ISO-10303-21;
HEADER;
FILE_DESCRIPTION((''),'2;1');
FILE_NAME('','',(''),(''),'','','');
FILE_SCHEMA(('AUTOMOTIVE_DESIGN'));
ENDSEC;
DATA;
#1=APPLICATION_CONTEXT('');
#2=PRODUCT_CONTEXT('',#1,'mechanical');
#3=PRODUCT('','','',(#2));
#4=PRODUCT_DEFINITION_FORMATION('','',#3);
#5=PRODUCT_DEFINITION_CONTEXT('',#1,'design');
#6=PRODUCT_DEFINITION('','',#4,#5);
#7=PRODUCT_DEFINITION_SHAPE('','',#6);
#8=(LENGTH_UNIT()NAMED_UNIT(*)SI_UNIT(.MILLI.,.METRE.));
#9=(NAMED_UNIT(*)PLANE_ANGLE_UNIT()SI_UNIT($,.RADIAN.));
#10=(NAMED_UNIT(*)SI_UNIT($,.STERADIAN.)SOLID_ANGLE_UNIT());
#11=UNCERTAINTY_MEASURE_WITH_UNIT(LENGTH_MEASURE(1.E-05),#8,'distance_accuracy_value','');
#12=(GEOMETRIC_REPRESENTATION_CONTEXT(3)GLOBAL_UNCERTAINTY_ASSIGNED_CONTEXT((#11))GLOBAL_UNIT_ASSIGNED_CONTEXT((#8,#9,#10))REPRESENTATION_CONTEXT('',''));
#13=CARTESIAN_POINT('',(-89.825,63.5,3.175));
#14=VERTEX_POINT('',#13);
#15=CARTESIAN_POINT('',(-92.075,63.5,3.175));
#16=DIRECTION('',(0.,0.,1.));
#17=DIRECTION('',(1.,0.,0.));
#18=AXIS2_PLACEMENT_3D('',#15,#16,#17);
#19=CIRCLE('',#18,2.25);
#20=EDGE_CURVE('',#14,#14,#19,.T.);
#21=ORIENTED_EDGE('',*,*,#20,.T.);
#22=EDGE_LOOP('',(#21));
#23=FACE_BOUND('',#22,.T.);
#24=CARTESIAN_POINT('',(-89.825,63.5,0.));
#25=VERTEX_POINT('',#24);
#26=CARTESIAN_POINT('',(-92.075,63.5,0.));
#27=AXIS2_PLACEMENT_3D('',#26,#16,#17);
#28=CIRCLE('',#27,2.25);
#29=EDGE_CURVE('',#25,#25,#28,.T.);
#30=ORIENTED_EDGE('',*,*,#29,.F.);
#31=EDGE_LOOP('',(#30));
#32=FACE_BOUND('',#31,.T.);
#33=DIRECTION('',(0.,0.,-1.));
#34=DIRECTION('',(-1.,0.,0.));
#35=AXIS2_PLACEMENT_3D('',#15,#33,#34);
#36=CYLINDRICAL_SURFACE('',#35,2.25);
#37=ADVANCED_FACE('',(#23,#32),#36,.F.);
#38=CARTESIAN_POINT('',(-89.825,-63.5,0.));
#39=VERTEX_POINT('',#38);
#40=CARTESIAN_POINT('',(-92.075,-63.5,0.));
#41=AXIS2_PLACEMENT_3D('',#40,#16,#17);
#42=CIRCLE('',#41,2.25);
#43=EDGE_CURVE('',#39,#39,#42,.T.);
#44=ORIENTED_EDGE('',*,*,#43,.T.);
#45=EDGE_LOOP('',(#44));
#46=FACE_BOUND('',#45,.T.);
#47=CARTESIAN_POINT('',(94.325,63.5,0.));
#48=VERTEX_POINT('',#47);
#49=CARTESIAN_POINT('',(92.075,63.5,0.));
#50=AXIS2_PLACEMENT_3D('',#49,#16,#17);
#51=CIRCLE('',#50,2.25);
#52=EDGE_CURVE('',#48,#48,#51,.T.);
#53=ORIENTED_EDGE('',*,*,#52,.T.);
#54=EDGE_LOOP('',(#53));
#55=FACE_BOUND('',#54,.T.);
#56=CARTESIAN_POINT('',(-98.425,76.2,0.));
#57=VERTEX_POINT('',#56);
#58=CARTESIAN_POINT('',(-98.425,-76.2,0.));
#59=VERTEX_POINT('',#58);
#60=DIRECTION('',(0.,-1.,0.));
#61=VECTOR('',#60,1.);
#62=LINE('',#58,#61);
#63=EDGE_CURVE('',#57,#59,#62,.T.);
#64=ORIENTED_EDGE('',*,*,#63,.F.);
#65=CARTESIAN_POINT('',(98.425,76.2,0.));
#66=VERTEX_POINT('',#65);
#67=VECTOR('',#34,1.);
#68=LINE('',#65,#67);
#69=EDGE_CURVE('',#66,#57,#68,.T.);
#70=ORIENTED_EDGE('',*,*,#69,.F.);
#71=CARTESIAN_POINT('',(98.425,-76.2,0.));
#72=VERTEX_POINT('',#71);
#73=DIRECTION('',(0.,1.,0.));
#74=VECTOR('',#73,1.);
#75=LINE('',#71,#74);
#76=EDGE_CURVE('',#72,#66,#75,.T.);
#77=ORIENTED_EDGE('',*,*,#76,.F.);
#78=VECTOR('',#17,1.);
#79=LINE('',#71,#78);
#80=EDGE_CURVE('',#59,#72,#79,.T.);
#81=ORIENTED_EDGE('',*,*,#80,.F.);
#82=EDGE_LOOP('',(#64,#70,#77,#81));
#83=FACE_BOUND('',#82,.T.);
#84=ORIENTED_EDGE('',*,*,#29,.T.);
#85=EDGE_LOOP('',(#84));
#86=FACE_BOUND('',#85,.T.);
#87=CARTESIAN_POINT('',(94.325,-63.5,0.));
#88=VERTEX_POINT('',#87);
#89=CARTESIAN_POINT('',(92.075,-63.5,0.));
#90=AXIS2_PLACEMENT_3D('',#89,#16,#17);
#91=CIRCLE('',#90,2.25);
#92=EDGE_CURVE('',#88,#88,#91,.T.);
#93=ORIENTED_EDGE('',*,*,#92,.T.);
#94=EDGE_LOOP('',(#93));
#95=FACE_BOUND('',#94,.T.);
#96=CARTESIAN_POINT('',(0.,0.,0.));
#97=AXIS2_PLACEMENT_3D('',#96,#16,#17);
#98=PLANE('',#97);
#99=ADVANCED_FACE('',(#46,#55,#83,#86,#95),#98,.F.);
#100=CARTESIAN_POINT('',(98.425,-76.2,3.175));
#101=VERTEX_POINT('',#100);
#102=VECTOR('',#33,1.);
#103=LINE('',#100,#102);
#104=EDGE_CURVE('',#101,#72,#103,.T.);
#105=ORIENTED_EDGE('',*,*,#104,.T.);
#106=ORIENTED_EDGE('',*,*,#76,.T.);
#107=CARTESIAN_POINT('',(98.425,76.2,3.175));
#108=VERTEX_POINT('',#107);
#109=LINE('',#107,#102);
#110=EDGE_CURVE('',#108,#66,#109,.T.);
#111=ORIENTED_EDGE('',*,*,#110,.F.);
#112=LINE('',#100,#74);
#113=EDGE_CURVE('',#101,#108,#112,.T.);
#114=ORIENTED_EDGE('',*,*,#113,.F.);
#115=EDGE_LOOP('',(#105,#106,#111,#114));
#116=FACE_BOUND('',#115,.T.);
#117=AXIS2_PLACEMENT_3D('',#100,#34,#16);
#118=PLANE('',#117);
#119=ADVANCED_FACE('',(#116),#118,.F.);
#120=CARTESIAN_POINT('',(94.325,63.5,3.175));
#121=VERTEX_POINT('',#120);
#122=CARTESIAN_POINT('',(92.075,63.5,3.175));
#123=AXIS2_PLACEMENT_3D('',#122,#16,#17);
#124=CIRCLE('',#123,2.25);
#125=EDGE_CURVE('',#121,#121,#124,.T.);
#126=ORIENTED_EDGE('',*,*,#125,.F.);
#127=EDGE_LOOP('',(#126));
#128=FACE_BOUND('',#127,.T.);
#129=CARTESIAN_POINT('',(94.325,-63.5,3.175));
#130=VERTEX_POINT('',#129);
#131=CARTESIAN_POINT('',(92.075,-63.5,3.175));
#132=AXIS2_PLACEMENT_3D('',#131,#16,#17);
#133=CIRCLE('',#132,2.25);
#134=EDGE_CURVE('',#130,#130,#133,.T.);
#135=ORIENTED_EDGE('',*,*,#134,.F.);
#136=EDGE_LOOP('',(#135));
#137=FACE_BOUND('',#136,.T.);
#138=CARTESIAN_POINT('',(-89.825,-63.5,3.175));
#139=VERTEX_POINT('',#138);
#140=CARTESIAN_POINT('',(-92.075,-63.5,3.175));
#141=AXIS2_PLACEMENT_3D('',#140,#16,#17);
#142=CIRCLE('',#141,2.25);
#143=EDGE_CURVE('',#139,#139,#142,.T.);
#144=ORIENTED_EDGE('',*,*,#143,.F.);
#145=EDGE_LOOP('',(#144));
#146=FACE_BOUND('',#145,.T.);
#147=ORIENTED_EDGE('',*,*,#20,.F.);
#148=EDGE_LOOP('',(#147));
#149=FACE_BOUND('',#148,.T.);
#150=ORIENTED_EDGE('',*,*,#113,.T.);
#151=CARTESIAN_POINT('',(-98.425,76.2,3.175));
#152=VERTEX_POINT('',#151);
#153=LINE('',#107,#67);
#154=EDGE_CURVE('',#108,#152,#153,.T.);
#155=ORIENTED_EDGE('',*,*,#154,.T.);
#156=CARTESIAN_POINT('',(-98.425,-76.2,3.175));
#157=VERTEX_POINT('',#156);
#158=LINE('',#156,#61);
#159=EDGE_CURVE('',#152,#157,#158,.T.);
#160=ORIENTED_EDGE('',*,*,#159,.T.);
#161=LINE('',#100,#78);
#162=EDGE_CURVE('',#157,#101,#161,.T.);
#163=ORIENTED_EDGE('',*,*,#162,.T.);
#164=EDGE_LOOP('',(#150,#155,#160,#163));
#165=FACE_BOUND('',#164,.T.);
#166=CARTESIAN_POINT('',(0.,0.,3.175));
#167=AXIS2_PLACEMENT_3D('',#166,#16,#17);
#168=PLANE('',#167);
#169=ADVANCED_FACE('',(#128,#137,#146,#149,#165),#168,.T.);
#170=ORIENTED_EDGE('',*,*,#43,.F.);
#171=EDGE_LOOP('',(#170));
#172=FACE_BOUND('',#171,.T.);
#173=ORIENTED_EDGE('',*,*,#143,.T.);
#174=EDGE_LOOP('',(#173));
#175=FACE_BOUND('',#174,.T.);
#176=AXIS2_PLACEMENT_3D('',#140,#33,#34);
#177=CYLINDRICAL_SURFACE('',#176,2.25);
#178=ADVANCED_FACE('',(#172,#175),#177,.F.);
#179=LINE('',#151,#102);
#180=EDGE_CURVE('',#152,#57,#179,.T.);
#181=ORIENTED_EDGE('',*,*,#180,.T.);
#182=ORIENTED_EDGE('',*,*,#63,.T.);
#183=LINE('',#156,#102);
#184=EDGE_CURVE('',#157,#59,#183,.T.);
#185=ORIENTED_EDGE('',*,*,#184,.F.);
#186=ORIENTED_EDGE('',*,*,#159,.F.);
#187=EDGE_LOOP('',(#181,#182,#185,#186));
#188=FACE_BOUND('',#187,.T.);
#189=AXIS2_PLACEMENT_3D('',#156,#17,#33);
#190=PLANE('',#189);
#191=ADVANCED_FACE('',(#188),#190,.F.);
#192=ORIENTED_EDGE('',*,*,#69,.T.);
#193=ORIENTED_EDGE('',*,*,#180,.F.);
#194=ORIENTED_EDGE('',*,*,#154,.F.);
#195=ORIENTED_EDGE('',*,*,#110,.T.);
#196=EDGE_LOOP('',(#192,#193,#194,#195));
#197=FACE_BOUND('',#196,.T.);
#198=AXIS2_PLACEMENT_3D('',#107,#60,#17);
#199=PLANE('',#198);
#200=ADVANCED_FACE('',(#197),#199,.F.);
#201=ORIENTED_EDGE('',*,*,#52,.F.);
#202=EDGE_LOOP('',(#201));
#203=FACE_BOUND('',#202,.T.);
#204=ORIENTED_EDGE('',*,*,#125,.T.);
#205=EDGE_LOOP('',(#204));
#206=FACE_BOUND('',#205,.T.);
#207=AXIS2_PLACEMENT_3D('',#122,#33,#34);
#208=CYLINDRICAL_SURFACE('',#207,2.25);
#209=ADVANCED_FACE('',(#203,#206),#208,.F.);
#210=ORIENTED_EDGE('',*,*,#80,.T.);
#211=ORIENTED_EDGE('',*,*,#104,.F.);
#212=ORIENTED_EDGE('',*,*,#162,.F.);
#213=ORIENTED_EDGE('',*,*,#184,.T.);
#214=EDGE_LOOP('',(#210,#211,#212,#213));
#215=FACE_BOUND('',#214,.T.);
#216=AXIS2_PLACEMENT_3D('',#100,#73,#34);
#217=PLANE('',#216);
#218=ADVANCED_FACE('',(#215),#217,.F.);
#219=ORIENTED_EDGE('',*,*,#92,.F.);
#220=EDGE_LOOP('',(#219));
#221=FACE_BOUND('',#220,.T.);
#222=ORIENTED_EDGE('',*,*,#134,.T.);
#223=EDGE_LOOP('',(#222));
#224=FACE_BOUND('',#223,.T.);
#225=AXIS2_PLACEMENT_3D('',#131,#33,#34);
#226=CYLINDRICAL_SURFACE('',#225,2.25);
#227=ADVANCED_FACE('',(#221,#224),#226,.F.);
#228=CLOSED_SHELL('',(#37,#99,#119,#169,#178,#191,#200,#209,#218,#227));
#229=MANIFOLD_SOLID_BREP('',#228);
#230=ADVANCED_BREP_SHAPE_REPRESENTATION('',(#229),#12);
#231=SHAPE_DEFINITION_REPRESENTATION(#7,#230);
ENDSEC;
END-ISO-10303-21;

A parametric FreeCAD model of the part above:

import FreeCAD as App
import Part
import Sketcher
Q = App.Units.Quantity


def add_polygon(sketch, points):
    """Adds a closed chain of lines whose ends are joined by coincident constraints."""
    first, n = sketch.GeometryCount, len(points)
    for a, b in zip(points, points[1:] + points[:1]):
        sketch.addGeometry(Part.LineSegment(App.Vector(*a, 0), App.Vector(*b, 0)), False)
    for i in range(n):
        sketch.addConstraint(Sketcher.Constraint("Coincident", first + i, 2, first + (i + 1) % n, 1))

doc = App.newDocument("Part")
params = doc.addObject("Spreadsheet::Sheet", "Params")
for row, (alias, value) in enumerate([
    ("sketch1_height", "6 in"),
    ("sketch1_width", "7.75 in"),
    ("pad1_length", "0.125 in"),
], start=1):
    params.set(f"A{row}", alias)
    params.set(f"B{row}", "=" + value)
    params.setAlias(f"B{row}", alias)

body = doc.addObject("PartDesign::Body", "Body")

# Sketch on XY plane
sketch1 = body.newObject("Sketcher::SketchObject", "Sketch")
sketch1.AttachmentSupport = (doc.getObject("XY_Plane"), [""])
sketch1.MapMode = "FlatFace"
add_polygon(sketch1, [(-98.4, 76.2), (-98.4, -76.2), (98.4, -76.2), (98.4, 76.2)])  # lines 0-3
sketch1.addGeometry(Part.Circle(App.Vector(-92.1, -63.5, 0), App.Vector(0, 0, 1), 2.2), False)  # 4
sketch1.addGeometry(Part.Circle(App.Vector(92.1, -63.5, 0), App.Vector(0, 0, 1), 2.2), False)  # 5
sketch1.addGeometry(Part.Circle(App.Vector(-92.1, 63.5, 0), App.Vector(0, 0, 1), 2.2), False)  # 6
sketch1.addGeometry(Part.Circle(App.Vector(92.1, 63.5, 0), App.Vector(0, 0, 1), 2.2), False)  # 7
sketch1.addConstraint(Sketcher.Constraint("Vertical", 0))
sketch1.addConstraint(Sketcher.Constraint("Horizontal", 1))
sketch1.addConstraint(Sketcher.Constraint("Vertical", 2))
sketch1.addConstraint(Sketcher.Constraint("Horizontal", 3))
sketch1.addConstraint(Sketcher.Constraint("Equal", 4, 5))
sketch1.addConstraint(Sketcher.Constraint("Equal", 5, 6))
sketch1.addConstraint(Sketcher.Constraint("Equal", 6, 7))
sketch1.addConstraint(Sketcher.Constraint("Symmetric", 5, 3, 6, 3, -1, 1))
sketch1.addConstraint(Sketcher.Constraint("Symmetric", 4, 3, 7, 3, -1, 1))
sketch1.addConstraint(Sketcher.Constraint("Symmetric", 0, 2, 2, 2, -1, 1))
sketch1.addConstraint(Sketcher.Constraint("Symmetric", 4, 3, 5, 3, -2))
sketch1.addConstraint(Sketcher.Constraint("DistanceY", 0, 2, 0, 1, Q("6 in")))
sketch1.addConstraint(Sketcher.Constraint("DistanceY", 4, 3, 6, 3, Q("5 in")))
sketch1.addConstraint(Sketcher.Constraint("DistanceX", 1, 1, 1, 2, Q("7.75 in")))
sketch1.addConstraint(Sketcher.Constraint("DistanceX", 0, 2, 5, 3, Q("7.5 in")))
sketch1.addConstraint(Sketcher.Constraint("Diameter", 4, Q("4.5 mm")))
sketch1.setExpression("Constraints[15]", "Params.sketch1_height")
sketch1.setExpression("Constraints[17]", "Params.sketch1_width")
pad1 = body.newObject("PartDesign::Pad", "Pad")
pad1.Profile = sketch1
pad1.setExpression("Length", "Params.pad1_length")

doc.recompute()
